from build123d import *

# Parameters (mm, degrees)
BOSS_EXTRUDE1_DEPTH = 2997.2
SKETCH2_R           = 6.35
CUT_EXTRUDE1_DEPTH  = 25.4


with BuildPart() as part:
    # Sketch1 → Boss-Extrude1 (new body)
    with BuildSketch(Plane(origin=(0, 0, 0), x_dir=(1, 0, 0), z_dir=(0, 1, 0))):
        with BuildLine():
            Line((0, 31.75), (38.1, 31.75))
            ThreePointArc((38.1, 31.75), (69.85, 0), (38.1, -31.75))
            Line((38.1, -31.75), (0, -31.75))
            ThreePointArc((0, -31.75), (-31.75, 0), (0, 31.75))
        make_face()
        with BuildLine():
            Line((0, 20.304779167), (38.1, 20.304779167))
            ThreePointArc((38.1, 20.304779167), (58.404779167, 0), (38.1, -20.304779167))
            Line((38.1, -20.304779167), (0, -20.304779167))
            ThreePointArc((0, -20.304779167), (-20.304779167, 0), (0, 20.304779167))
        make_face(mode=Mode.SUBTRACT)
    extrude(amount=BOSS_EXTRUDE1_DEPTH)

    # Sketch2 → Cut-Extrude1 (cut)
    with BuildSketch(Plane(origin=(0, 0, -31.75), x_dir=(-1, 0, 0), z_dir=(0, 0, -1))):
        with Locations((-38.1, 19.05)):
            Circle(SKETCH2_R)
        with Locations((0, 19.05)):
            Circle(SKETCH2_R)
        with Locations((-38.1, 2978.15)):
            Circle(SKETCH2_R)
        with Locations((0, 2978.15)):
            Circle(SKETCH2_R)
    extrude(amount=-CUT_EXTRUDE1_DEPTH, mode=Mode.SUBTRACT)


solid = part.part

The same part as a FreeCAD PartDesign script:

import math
import FreeCAD as App
import Part
import Sketcher

V = App.Vector
Q = App.Units.Quantity

doc = App.newDocument("Part")
params = doc.addObject("Spreadsheet::Sheet", "Params")
for row, (alias, value) in enumerate([
    ("sketch1_radius", "1.25 in"),
    ("sketch1_width", "1.5 in"),
    ("pad1_length", "118 in"),
    ("sketch2_diameter", "0.5 in"),
    ("pocket1_length", "1 in"),
], start=1):
    params.set(f"A{row}", alias)
    params.set(f"B{row}", "=" + value)
    params.setAlias(f"B{row}", alias)

body = doc.addObject("PartDesign::Body", "Body")

sketch1 = body.newObject("Sketcher::SketchObject", "Sketch")
sketch1.AttachmentSupport = (doc.getObject("XZ_Plane"), [""])
sketch1.MapMode = "FlatFace"
sketch1.addGeometry(Part.LineSegment(V(38, -32, 0), V(0, -32, 0)), False)
sketch1.addGeometry(Part.ArcOfCircle(Part.Circle(V(0, 0, 0), V(0, 0, 1), 32), math.radians(90), math.radians(270)), False)
sketch1.addGeometry(Part.LineSegment(V(0, 32, 0), V(38, 32, 0)), False)
sketch1.addGeometry(Part.ArcOfCircle(Part.Circle(V(38, 0, 0), V(0, 0, 1), 32), math.radians(-90), math.radians(90)), False)
sketch1.addGeometry(Part.LineSegment(V(0, -20, 0), V(38, -20, 0)), False)
sketch1.addGeometry(Part.ArcOfCircle(Part.Circle(V(38, 0, 0), V(0, 0, 1), 20), math.radians(-90), math.radians(90)), False)
sketch1.addGeometry(Part.LineSegment(V(38, 20, 0), V(0, 20, 0)), False)
sketch1.addGeometry(Part.ArcOfCircle(Part.Circle(V(0, 0, 0), V(0, 0, 1), 20), math.radians(90), math.radians(270)), False)
sketch1.addConstraint(Sketcher.Constraint("Tangent", 0, 2, 1, 2))
sketch1.addConstraint(Sketcher.Constraint("Tangent", 1, 1, 2, 1))
sketch1.addConstraint(Sketcher.Constraint("Tangent", 2, 2, 3, 2))
sketch1.addConstraint(Sketcher.Constraint("Tangent", 3, 1, 0, 1))
sketch1.addConstraint(Sketcher.Constraint("Tangent", 4, 2, 5, 1))
sketch1.addConstraint(Sketcher.Constraint("Tangent", 5, 2, 6, 1))
sketch1.addConstraint(Sketcher.Constraint("Tangent", 6, 2, 7, 1))
sketch1.addConstraint(Sketcher.Constraint("Tangent", 7, 2, 4, 1))
sketch1.addConstraint(Sketcher.Constraint("Horizontal", 0))
sketch1.addConstraint(Sketcher.Constraint("Horizontal", 2))
sketch1.addConstraint(Sketcher.Constraint("Horizontal", 4))
sketch1.addConstraint(Sketcher.Constraint("Horizontal", 6))
sketch1.addConstraint(Sketcher.Constraint("Coincident", 1, 3, -1, 1))
sketch1.addConstraint(Sketcher.Constraint("Coincident", 7, 3, -1, 1))
sketch1.addConstraint(Sketcher.Constraint("Vertical", 5, 3, 2, 2))
sketch1.addConstraint(Sketcher.Constraint("Radius", 1, Q("1.25 in")))
sketch1.addConstraint(Sketcher.Constraint("DistanceX", 0, 2, 0, 1, Q("1.5 in")))
sketch1.addConstraint(Sketcher.Constraint("Radius", 5, Q("20.304779 mm")))
sketch1.setExpression("Constraints[15]", "Params.sketch1_radius")
sketch1.setExpression("Constraints[16]", "Params.sketch1_width")
pad1 = body.newObject("PartDesign::Pad", "Pad")
pad1.Profile = sketch1
pad1.setExpression("Length", "Params.pad1_length")
pad1.Reversed = True

sketch2 = body.newObject("Sketcher::SketchObject", "Sketch001")
sketch2.AttachmentSupport = (doc.getObject("XY_Plane"), [""])
sketch2.MapMode = "FlatFace"
sketch2.AttachmentOffset = App.Placement(V(0, 0, -1.25 * 25.4), App.Rotation())
sketch2.addGeometry(Part.Circle(V(38, 19, 0), V(0, 0, 1), 6), False)
sketch2.addGeometry(Part.Circle(V(0, 19, 0), V(0, 0, 1), 6), False)
sketch2.addGeometry(Part.Circle(V(38, 2978, 0), V(0, 0, 1), 6), False)
sketch2.addGeometry(Part.Circle(V(0, 2978, 0), V(0, 0, 1), 6), False)
sketch2.addConstraint(Sketcher.Constraint("Equal", 0, 1))
sketch2.addConstraint(Sketcher.Constraint("Equal", 1, 2))
sketch2.addConstraint(Sketcher.Constraint("Equal", 2, 3))
sketch2.addConstraint(Sketcher.Constraint("PointOnObject", 1, 3, -2))
sketch2.addConstraint(Sketcher.Constraint("PointOnObject", 3, 3, -2))
sketch2.addConstraint(Sketcher.Constraint("Horizontal", 0, 3, 1, 3))
sketch2.addConstraint(Sketcher.Constraint("Horizontal", 2, 3, 3, 3))
sketch2.addConstraint(Sketcher.Constraint("Vertical", 0, 3, 2, 3))
sketch2.addConstraint(Sketcher.Constraint("Diameter", 0, Q("0.5 in")))
sketch2.addConstraint(Sketcher.Constraint("DistanceX", -1, 1, 0, 3, Q("1.5 in")))
sketch2.addConstraint(Sketcher.Constraint("DistanceY", 0, 3, 2, 3, Q("116.5 in")))
sketch2.addConstraint(Sketcher.Constraint("DistanceY", -1, 1, 0, 3, Q("0.75 in")))
sketch2.setExpression("Constraints[8]", "Params.sketch2_diameter")
pocket1 = body.newObject("PartDesign::Pocket", "Pocket")
pocket1.Profile = sketch2
pocket1.setExpression("Length", "Params.pocket1_length")
pocket1.Reversed = True

doc.recompute()
